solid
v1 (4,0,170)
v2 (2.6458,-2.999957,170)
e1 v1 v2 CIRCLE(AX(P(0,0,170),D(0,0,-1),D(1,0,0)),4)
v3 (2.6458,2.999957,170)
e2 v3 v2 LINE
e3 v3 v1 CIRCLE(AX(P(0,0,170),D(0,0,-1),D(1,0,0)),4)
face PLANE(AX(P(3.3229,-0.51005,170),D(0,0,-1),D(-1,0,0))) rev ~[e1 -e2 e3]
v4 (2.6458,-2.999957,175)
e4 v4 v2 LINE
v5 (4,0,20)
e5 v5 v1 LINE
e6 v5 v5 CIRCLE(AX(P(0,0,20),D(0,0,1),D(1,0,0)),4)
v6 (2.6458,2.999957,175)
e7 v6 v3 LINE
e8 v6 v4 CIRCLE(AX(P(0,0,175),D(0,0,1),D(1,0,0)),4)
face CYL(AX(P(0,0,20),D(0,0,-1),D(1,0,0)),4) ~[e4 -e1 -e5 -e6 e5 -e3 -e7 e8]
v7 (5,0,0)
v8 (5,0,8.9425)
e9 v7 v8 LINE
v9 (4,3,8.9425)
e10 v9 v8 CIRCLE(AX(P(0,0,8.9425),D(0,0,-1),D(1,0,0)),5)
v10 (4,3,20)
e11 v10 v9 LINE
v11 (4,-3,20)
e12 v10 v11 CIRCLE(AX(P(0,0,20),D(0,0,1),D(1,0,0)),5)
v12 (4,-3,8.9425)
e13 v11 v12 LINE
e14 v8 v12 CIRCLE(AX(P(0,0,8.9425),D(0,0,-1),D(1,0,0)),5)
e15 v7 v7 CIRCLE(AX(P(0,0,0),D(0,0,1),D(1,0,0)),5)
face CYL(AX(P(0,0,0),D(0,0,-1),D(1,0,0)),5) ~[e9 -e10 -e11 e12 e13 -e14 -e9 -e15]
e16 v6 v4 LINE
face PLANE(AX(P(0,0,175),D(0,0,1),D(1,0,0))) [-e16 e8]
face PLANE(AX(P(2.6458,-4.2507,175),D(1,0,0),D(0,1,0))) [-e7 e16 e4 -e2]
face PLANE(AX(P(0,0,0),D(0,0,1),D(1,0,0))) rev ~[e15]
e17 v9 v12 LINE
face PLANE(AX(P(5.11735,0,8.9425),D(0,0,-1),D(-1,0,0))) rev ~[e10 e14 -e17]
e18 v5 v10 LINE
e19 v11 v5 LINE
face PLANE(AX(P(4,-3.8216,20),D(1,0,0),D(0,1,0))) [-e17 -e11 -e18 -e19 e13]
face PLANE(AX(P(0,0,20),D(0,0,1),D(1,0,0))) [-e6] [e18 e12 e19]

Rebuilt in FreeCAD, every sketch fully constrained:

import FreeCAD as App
import Part
import Sketcher

V = App.Vector

doc = App.newDocument("Part")
body = doc.addObject("PartDesign::Body", "Body")

# Sketch on XY plane
sketch1 = body.newObject("Sketcher::SketchObject", "Sketch")
sketch1.AttachmentSupport = (doc.getObject("XY_Plane"), [""])
sketch1.MapMode = "FlatFace"
sketch1.addGeometry(Part.Circle(V(0, 0, 0), V(0, 0, 1), 5), False)
sketch1.addConstraint([
    Sketcher.Constraint("Coincident", 0, 3, -1, 1),
    Sketcher.Constraint("Diameter", 0, 10.0),
])
pad1 = body.newObject("PartDesign::Pad", "Pad")
pad1.Profile = sketch1
pad1.Length = 20

# Sketch on XY plane
sketch2 = body.newObject("Sketcher::SketchObject", "Sketch001")
sketch2.AttachmentSupport = (doc.getObject("XY_Plane"), [""])
sketch2.MapMode = "FlatFace"
sketch2.AttachmentOffset = App.Placement(V(0, 0, 20), App.Rotation())
sketch2.addGeometry(Part.Circle(V(0, 0, 0), V(0, 0, 1), 4), False)
sketch2.addConstraint([
    Sketcher.Constraint("Coincident", 0, 3, -1, 1),
    Sketcher.Constraint("Diameter", 0, 8.0),
])
pad2 = body.newObject("PartDesign::Pad", "Pad001")
pad2.Profile = sketch2
pad2.Length = 155

# Sketch on XY plane
sketch3 = body.newObject("Sketcher::SketchObject", "Sketch002")
sketch3.AttachmentSupport = (doc.getObject("XY_Plane"), [""])
sketch3.MapMode = "FlatFace"
sketch3.AttachmentOffset = App.Placement(V(0, 0, 20), App.Rotation())
sketch3.addGeometry([
    Part.LineSegment(V(6.2, -3.8, 0), V(6.2, 3.8, 0)),
    Part.LineSegment(V(6.2, 3.8, 0), V(4, 3.8, 0)),
    Part.LineSegment(V(4, 3.8, 0), V(4, -3.8, 0)),
    Part.LineSegment(V(4, -3.8, 0), V(6.2, -3.8, 0)),
], False)
sketch3.addConstraint([
    Sketcher.Constraint("Coincident", 0, 2, 1, 1),
    Sketcher.Constraint("Coincident", 1, 2, 2, 1),
    Sketcher.Constraint("Coincident", 2, 2, 3, 1),
    Sketcher.Constraint("Coincident", 3, 2, 0, 1),
    Sketcher.Constraint("Vertical", 0),
    Sketcher.Constraint("Horizontal", 1),
    Sketcher.Constraint("Vertical", 2),
    Sketcher.Constraint("Horizontal", 3),
    Sketcher.Constraint("DistanceX", -1, 1, 1, 2, 4.0),
    Sketcher.Constraint("DistanceX", 1, 2, 1, 1, 2.2347),
    Sketcher.Constraint("DistanceY", 0, 1, 0, 2, 7.6432),
    Sketcher.Constraint("DistanceY", -1, 1, 0, 2, 3.8216),
])
pocket1 = body.newObject("PartDesign::Pocket", "Pocket")
pocket1.Profile = sketch3
pocket1.Length = 11.0575

# Sketch on XY plane
sketch4 = body.newObject("Sketcher::SketchObject", "Sketch003")
sketch4.AttachmentSupport = (doc.getObject("XY_Plane"), [""])
sketch4.MapMode = "FlatFace"
sketch4.AttachmentOffset = App.Placement(V(0, 0, 175), App.Rotation())
sketch4.addGeometry([
    Part.LineSegment(V(4, -4.3, 0), V(4, 3.2, 0)),
    Part.LineSegment(V(4, 3.2, 0), V(2.6, 3.2, 0)),
    Part.LineSegment(V(2.6, 3.2, 0), V(2.6, -4.3, 0)),
    Part.LineSegment(V(2.6, -4.3, 0), V(4, -4.3, 0)),
], False)
sketch4.addConstraint([
    Sketcher.Constraint("Coincident", 0, 2, 1, 1),
    Sketcher.Constraint("Coincident", 1, 2, 2, 1),
    Sketcher.Constraint("Coincident", 2, 2, 3, 1),
    Sketcher.Constraint("Coincident", 3, 2, 0, 1),
    Sketcher.Constraint("Vertical", 0),
    Sketcher.Constraint("Horizontal", 1),
    Sketcher.Constraint("Vertical", 2),
    Sketcher.Constraint("Horizontal", 3),
    Sketcher.Constraint("DistanceX", -1, 1, 0, 2, 4.0),
    Sketcher.Constraint("DistanceX", 1, 2, 1, 1, 1.3542),
    Sketcher.Constraint("DistanceY", 0, 1, 0, 2, 7.4813),
    Sketcher.Constraint("DistanceY", -1, 1, 0, 2, 3.2306),
])
pocket2 = body.newObject("PartDesign::Pocket", "Pocket001")
pocket2.Profile = sketch4
pocket2.Length = 5

doc.recompute()
